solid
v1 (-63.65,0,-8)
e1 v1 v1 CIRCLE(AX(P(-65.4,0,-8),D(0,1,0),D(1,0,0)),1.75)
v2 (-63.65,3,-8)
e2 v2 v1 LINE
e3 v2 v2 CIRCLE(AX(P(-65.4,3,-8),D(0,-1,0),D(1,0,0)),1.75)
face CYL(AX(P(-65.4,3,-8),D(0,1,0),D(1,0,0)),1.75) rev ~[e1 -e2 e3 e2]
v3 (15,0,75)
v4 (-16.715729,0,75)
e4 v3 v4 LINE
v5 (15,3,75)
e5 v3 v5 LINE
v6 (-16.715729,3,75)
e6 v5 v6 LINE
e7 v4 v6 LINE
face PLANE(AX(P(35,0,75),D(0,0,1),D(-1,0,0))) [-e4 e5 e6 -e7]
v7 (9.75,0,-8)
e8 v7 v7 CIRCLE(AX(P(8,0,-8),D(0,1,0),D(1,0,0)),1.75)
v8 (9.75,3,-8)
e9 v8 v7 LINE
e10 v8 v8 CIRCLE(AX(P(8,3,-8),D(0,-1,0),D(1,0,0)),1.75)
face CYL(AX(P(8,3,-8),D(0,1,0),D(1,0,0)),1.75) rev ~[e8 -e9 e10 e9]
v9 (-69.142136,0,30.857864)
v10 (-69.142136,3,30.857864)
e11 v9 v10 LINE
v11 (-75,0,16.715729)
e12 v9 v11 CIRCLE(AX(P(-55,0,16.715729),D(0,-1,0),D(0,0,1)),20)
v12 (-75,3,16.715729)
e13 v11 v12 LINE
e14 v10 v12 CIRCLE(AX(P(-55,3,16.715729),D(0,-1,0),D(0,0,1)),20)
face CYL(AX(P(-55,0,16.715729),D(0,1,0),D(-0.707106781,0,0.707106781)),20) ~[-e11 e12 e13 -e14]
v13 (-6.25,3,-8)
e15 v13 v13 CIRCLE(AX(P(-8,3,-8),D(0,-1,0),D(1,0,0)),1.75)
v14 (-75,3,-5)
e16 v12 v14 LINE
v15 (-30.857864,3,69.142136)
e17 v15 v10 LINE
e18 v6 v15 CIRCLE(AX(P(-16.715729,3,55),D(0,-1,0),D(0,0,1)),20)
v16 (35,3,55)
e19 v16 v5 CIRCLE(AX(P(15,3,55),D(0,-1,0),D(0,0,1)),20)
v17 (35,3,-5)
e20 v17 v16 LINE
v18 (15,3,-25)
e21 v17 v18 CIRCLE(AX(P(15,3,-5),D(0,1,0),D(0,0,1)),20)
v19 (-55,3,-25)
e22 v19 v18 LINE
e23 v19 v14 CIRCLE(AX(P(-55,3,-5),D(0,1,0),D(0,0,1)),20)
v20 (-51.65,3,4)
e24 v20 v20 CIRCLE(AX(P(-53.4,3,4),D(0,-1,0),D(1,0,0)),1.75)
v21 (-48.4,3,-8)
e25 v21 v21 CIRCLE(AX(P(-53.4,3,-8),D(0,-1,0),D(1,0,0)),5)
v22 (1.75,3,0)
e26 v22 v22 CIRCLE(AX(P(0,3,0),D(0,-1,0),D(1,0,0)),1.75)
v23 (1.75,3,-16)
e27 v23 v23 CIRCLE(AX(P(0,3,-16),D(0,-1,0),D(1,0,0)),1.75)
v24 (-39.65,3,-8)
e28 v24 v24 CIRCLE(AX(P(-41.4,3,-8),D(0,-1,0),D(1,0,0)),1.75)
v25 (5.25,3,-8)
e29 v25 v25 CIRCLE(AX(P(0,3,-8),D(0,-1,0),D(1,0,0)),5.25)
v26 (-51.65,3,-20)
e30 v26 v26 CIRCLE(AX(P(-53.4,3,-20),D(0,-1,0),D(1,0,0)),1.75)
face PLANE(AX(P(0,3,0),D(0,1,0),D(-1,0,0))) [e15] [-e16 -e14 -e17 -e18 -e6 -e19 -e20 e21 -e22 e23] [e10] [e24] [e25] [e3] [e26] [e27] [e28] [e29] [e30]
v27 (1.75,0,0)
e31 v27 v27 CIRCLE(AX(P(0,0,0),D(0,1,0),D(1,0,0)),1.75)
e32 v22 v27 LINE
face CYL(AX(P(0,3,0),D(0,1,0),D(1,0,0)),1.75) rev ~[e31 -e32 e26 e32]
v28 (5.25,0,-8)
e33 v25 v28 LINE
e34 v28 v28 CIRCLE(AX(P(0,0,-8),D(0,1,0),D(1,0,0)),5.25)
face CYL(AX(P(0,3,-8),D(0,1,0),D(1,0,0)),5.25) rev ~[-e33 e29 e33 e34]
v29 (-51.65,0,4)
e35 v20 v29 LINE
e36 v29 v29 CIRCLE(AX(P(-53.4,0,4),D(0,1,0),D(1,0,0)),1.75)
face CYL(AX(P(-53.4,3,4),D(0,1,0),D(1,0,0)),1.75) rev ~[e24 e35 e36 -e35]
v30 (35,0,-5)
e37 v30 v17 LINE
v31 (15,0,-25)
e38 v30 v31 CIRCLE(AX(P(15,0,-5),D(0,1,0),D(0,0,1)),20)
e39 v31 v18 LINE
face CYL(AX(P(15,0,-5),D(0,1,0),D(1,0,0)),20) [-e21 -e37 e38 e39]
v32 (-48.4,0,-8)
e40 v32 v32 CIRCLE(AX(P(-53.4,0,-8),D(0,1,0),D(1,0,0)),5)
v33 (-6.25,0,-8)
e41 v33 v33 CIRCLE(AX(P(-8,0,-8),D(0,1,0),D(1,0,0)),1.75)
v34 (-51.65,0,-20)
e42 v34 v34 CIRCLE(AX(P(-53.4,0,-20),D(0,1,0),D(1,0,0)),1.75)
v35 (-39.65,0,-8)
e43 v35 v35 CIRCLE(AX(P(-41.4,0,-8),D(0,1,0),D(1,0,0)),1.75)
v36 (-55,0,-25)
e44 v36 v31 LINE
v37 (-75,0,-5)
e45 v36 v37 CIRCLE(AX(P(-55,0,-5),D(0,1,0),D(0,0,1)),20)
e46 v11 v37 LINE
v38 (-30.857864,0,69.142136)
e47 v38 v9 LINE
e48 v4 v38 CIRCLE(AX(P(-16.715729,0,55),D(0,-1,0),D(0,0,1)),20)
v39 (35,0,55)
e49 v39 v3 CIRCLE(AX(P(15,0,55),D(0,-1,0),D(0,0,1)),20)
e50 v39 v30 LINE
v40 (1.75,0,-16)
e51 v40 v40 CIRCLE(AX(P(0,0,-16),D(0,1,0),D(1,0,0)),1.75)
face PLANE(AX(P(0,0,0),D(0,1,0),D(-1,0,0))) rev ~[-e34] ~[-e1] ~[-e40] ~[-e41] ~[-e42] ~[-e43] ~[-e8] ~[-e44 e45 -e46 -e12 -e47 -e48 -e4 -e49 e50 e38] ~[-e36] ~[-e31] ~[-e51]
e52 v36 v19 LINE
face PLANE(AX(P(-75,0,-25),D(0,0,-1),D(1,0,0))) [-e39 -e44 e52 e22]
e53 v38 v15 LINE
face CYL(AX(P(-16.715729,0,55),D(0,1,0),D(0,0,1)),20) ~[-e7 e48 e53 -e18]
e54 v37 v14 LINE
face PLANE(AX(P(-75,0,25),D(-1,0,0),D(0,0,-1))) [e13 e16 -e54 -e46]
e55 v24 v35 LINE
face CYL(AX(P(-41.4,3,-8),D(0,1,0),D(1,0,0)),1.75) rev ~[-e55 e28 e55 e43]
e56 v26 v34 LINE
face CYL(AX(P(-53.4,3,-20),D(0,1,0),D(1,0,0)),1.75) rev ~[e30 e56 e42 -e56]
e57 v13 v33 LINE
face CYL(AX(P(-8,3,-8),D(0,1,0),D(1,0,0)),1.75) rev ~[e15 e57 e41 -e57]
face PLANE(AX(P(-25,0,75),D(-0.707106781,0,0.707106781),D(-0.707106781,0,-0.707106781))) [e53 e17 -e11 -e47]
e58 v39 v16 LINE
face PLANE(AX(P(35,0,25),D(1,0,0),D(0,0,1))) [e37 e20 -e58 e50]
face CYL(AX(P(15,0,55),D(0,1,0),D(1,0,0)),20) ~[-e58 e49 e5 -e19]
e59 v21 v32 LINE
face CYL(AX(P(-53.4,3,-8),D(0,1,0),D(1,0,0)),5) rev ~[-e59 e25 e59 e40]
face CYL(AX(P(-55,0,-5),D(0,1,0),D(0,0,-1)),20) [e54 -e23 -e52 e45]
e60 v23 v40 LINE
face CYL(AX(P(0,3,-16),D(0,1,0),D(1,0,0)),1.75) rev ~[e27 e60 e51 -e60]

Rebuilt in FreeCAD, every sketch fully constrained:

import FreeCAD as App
import Part
import Sketcher


def edges_at(feature, points):
    """Names of the edges that pass closest to the given points."""
    edges = feature.Shape.Edges
    near = lambda p: min(range(len(edges)), key=lambda i: edges[i].distToShape(Part.Vertex(*p))[0])
    return sorted({f"Edge{near(p) + 1}" for p in points})

doc = App.newDocument("Part")
params = doc.addObject("Spreadsheet::Sheet", "Params")
for row, (alias, value) in enumerate([
    ("sketch1_width", "60 mm"),
    ("sketch1_height", "50 mm"),
    ("pad1_length", "3 mm"),
    ("sketch2_diameter", "10 mm"),
    ("sketch2_diameter2", "3.5 mm"),
    ("sketch2_diameter3", "10.5 mm"),
    ("fillet_radius", "20 mm"),
], start=1):
    params.set(f"A{row}", alias)
    params.set(f"B{row}", "=" + value)
    params.setAlias(f"B{row}", alias)

body = doc.addObject("PartDesign::Body", "Body")

sketch1 = body.newObject("Sketcher::SketchObject", "Sketch")
sketch1.AttachmentSupport = (doc.getObject("XZ_Plane"), [""])
sketch1.MapMode = "FlatFace"
sketch1.addGeometry(Part.LineSegment(App.Vector(35, 75, 0), App.Vector(35, -25, 0)), False)
sketch1.addGeometry(Part.LineSegment(App.Vector(35, -25, 0), App.Vector(-75, -25, 0)), False)
sketch1.addGeometry(Part.LineSegment(App.Vector(-75, -25, 0), App.Vector(-75, 25, 0)), False)
sketch1.addGeometry(Part.LineSegment(App.Vector(-75, 25, 0), App.Vector(-25, 75, 0)), False)
sketch1.addGeometry(Part.LineSegment(App.Vector(-25, 75, 0), App.Vector(35, 75, 0)), False)
sketch1.addConstraint(Sketcher.Constraint("Coincident", 0, 2, 1, 1))
sketch1.addConstraint(Sketcher.Constraint("Coincident", 1, 2, 2, 1))
sketch1.addConstraint(Sketcher.Constraint("Coincident", 2, 2, 3, 1))
sketch1.addConstraint(Sketcher.Constraint("Coincident", 3, 2, 4, 1))
sketch1.addConstraint(Sketcher.Constraint("Coincident", 4, 2, 0, 1))
sketch1.addConstraint(Sketcher.Constraint("Vertical", 0))
sketch1.addConstraint(Sketcher.Constraint("Horizontal", 1))
sketch1.addConstraint(Sketcher.Constraint("Vertical", 2))
sketch1.addConstraint(Sketcher.Constraint("Horizontal", 4))
sketch1.addConstraint(Sketcher.Constraint("DistanceX", 4, 1, 4, 2, 60.0))
sketch1.addConstraint(Sketcher.Constraint("DistanceY", 2, 1, 2, 2, 50.0))
sketch1.addConstraint(Sketcher.Constraint("DistanceX", 2, 2, 3, 2, 50.0))
sketch1.addConstraint(Sketcher.Constraint("DistanceY", 2, 2, 3, 2, 50.0))
sketch1.addConstraint(Sketcher.Constraint("DistanceX", -1, 1, 0, 2, 35.0))
sketch1.addConstraint(Sketcher.Constraint("DistanceY", 0, 2, -1, 1, 25.0))
sketch1.setExpression("Constraints[9]", "Params.sketch1_width")
sketch1.setExpression("Constraints[10]", "Params.sketch1_height")
pad1 = body.newObject("PartDesign::Pad", "Pad")
pad1.Profile = sketch1
pad1.setExpression("Length", "Params.pad1_length")
pad1.Reversed = True

sketch2 = body.newObject("Sketcher::SketchObject", "Sketch001")
sketch2.AttachmentSupport = (doc.getObject("XZ_Plane"), [""])
sketch2.MapMode = "FlatFace"
sketch2.AttachmentOffset = App.Placement(App.Vector(0, 0, -3), App.Rotation())
sketch2.addGeometry(Part.Circle(App.Vector(0, -16, 0), App.Vector(0, 0, 1), 1.8), False)
sketch2.addGeometry(Part.Circle(App.Vector(-41.4, -8, 0), App.Vector(0, 0, 1), 1.8), False)
sketch2.addGeometry(Part.Circle(App.Vector(-8, -8, 0), App.Vector(0, 0, 1), 1.8), False)
sketch2.addGeometry(Part.Circle(App.Vector(0, -8, 0), App.Vector(0, 0, 1), 5.2), False)
sketch2.addGeometry(Part.Circle(App.Vector(8, -8, 0), App.Vector(0, 0, 1), 1.8), False)
sketch2.addGeometry(Part.Circle(App.Vector(0, 0, 0), App.Vector(0, 0, 1), 1.8), False)
sketch2.addGeometry(Part.Circle(App.Vector(-53.4, -20, 0), App.Vector(0, 0, 1), 1.8), False)
sketch2.addGeometry(Part.Circle(App.Vector(-53.4, 4, 0), App.Vector(0, 0, 1), 1.8), False)
sketch2.addGeometry(Part.Circle(App.Vector(-53.4, -8, 0), App.Vector(0, 0, 1), 5), False)
sketch2.addGeometry(Part.Circle(App.Vector(-65.4, -8, 0), App.Vector(0, 0, 1), 1.8), False)
sketch2.addConstraint(Sketcher.Constraint("Coincident", 5, 3, -1, 1))
sketch2.addConstraint(Sketcher.Constraint("Equal", 0, 1))
sketch2.addConstraint(Sketcher.Constraint("Equal", 1, 2))
sketch2.addConstraint(Sketcher.Constraint("Equal", 2, 4))
sketch2.addConstraint(Sketcher.Constraint("Equal", 4, 5))
sketch2.addConstraint(Sketcher.Constraint("Equal", 5, 6))
sketch2.addConstraint(Sketcher.Constraint("Equal", 6, 7))
sketch2.addConstraint(Sketcher.Constraint("Equal", 7, 9))
sketch2.addConstraint(Sketcher.Constraint("Symmetric", 2, 3, 4, 3, -2))
sketch2.addConstraint(Sketcher.Constraint("PointOnObject", 0, 3, -2))
sketch2.addConstraint(Sketcher.Constraint("PointOnObject", 3, 3, -2))
sketch2.addConstraint(Sketcher.Constraint("Horizontal", 1, 3, 2, 3))
sketch2.addConstraint(Sketcher.Constraint("Horizontal", 2, 3, 3, 3))
sketch2.addConstraint(Sketcher.Constraint("Horizontal", 4, 3, 8, 3))
sketch2.addConstraint(Sketcher.Constraint("Horizontal", 8, 3, 9, 3))
sketch2.addConstraint(Sketcher.Constraint("Vertical", 6, 3, 7, 3))
sketch2.addConstraint(Sketcher.Constraint("Vertical", 7, 3, 8, 3))
sketch2.addConstraint(Sketcher.Constraint("Diameter", 8, 10.0))
sketch2.addConstraint(Sketcher.Constraint("Diameter", 0, 3.5))
sketch2.addConstraint(Sketcher.Constraint("Diameter", 3, 10.5))
sketch2.addConstraint(Sketcher.Constraint("DistanceY", 6, 3, 7, 3, 24.0))
sketch2.addConstraint(Sketcher.Constraint("DistanceX", 9, 3, 1, 3, 24.0))
sketch2.addConstraint(Sketcher.Constraint("DistanceX", 6, 3, -1, 1, 53.4))
sketch2.addConstraint(Sketcher.Constraint("DistanceY", 0, 3, -1, 1, 16.0))
sketch2.addConstraint(Sketcher.Constraint("DistanceY", 1, 3, -1, 1, 8.0))
sketch2.addConstraint(Sketcher.Constraint("DistanceX", 2, 3, -1, 1, 8.0))
sketch2.addConstraint(Sketcher.Constraint("DistanceY", 6, 3, -1, 1, 20.0))
sketch2.addConstraint(Sketcher.Constraint("DistanceX", 6, 3, 1, 3, 12.0))
sketch2.setExpression("Constraints[17]", "Params.sketch2_diameter")
sketch2.setExpression("Constraints[18]", "Params.sketch2_diameter2")
sketch2.setExpression("Constraints[19]", "Params.sketch2_diameter3")
pocket1 = body.newObject("PartDesign::Pocket", "Pocket")
pocket1.Profile = sketch2
pocket1.Type = "ThroughAll"
pocket1.Reversed = True
doc.recompute()

fillet = body.newObject("PartDesign::Fillet", "Fillet")
fillet.Base = (pocket1, edges_at(pocket1, [
    (35, 1.5, -25),
    (35, 1.5, 75),
    (-25, 1.5, 75),
    (-75, 1.5, 25),
    (-75, 1.5, -25),
]))
fillet.setExpression("Radius", "Params.fillet_radius")

doc.recompute()
